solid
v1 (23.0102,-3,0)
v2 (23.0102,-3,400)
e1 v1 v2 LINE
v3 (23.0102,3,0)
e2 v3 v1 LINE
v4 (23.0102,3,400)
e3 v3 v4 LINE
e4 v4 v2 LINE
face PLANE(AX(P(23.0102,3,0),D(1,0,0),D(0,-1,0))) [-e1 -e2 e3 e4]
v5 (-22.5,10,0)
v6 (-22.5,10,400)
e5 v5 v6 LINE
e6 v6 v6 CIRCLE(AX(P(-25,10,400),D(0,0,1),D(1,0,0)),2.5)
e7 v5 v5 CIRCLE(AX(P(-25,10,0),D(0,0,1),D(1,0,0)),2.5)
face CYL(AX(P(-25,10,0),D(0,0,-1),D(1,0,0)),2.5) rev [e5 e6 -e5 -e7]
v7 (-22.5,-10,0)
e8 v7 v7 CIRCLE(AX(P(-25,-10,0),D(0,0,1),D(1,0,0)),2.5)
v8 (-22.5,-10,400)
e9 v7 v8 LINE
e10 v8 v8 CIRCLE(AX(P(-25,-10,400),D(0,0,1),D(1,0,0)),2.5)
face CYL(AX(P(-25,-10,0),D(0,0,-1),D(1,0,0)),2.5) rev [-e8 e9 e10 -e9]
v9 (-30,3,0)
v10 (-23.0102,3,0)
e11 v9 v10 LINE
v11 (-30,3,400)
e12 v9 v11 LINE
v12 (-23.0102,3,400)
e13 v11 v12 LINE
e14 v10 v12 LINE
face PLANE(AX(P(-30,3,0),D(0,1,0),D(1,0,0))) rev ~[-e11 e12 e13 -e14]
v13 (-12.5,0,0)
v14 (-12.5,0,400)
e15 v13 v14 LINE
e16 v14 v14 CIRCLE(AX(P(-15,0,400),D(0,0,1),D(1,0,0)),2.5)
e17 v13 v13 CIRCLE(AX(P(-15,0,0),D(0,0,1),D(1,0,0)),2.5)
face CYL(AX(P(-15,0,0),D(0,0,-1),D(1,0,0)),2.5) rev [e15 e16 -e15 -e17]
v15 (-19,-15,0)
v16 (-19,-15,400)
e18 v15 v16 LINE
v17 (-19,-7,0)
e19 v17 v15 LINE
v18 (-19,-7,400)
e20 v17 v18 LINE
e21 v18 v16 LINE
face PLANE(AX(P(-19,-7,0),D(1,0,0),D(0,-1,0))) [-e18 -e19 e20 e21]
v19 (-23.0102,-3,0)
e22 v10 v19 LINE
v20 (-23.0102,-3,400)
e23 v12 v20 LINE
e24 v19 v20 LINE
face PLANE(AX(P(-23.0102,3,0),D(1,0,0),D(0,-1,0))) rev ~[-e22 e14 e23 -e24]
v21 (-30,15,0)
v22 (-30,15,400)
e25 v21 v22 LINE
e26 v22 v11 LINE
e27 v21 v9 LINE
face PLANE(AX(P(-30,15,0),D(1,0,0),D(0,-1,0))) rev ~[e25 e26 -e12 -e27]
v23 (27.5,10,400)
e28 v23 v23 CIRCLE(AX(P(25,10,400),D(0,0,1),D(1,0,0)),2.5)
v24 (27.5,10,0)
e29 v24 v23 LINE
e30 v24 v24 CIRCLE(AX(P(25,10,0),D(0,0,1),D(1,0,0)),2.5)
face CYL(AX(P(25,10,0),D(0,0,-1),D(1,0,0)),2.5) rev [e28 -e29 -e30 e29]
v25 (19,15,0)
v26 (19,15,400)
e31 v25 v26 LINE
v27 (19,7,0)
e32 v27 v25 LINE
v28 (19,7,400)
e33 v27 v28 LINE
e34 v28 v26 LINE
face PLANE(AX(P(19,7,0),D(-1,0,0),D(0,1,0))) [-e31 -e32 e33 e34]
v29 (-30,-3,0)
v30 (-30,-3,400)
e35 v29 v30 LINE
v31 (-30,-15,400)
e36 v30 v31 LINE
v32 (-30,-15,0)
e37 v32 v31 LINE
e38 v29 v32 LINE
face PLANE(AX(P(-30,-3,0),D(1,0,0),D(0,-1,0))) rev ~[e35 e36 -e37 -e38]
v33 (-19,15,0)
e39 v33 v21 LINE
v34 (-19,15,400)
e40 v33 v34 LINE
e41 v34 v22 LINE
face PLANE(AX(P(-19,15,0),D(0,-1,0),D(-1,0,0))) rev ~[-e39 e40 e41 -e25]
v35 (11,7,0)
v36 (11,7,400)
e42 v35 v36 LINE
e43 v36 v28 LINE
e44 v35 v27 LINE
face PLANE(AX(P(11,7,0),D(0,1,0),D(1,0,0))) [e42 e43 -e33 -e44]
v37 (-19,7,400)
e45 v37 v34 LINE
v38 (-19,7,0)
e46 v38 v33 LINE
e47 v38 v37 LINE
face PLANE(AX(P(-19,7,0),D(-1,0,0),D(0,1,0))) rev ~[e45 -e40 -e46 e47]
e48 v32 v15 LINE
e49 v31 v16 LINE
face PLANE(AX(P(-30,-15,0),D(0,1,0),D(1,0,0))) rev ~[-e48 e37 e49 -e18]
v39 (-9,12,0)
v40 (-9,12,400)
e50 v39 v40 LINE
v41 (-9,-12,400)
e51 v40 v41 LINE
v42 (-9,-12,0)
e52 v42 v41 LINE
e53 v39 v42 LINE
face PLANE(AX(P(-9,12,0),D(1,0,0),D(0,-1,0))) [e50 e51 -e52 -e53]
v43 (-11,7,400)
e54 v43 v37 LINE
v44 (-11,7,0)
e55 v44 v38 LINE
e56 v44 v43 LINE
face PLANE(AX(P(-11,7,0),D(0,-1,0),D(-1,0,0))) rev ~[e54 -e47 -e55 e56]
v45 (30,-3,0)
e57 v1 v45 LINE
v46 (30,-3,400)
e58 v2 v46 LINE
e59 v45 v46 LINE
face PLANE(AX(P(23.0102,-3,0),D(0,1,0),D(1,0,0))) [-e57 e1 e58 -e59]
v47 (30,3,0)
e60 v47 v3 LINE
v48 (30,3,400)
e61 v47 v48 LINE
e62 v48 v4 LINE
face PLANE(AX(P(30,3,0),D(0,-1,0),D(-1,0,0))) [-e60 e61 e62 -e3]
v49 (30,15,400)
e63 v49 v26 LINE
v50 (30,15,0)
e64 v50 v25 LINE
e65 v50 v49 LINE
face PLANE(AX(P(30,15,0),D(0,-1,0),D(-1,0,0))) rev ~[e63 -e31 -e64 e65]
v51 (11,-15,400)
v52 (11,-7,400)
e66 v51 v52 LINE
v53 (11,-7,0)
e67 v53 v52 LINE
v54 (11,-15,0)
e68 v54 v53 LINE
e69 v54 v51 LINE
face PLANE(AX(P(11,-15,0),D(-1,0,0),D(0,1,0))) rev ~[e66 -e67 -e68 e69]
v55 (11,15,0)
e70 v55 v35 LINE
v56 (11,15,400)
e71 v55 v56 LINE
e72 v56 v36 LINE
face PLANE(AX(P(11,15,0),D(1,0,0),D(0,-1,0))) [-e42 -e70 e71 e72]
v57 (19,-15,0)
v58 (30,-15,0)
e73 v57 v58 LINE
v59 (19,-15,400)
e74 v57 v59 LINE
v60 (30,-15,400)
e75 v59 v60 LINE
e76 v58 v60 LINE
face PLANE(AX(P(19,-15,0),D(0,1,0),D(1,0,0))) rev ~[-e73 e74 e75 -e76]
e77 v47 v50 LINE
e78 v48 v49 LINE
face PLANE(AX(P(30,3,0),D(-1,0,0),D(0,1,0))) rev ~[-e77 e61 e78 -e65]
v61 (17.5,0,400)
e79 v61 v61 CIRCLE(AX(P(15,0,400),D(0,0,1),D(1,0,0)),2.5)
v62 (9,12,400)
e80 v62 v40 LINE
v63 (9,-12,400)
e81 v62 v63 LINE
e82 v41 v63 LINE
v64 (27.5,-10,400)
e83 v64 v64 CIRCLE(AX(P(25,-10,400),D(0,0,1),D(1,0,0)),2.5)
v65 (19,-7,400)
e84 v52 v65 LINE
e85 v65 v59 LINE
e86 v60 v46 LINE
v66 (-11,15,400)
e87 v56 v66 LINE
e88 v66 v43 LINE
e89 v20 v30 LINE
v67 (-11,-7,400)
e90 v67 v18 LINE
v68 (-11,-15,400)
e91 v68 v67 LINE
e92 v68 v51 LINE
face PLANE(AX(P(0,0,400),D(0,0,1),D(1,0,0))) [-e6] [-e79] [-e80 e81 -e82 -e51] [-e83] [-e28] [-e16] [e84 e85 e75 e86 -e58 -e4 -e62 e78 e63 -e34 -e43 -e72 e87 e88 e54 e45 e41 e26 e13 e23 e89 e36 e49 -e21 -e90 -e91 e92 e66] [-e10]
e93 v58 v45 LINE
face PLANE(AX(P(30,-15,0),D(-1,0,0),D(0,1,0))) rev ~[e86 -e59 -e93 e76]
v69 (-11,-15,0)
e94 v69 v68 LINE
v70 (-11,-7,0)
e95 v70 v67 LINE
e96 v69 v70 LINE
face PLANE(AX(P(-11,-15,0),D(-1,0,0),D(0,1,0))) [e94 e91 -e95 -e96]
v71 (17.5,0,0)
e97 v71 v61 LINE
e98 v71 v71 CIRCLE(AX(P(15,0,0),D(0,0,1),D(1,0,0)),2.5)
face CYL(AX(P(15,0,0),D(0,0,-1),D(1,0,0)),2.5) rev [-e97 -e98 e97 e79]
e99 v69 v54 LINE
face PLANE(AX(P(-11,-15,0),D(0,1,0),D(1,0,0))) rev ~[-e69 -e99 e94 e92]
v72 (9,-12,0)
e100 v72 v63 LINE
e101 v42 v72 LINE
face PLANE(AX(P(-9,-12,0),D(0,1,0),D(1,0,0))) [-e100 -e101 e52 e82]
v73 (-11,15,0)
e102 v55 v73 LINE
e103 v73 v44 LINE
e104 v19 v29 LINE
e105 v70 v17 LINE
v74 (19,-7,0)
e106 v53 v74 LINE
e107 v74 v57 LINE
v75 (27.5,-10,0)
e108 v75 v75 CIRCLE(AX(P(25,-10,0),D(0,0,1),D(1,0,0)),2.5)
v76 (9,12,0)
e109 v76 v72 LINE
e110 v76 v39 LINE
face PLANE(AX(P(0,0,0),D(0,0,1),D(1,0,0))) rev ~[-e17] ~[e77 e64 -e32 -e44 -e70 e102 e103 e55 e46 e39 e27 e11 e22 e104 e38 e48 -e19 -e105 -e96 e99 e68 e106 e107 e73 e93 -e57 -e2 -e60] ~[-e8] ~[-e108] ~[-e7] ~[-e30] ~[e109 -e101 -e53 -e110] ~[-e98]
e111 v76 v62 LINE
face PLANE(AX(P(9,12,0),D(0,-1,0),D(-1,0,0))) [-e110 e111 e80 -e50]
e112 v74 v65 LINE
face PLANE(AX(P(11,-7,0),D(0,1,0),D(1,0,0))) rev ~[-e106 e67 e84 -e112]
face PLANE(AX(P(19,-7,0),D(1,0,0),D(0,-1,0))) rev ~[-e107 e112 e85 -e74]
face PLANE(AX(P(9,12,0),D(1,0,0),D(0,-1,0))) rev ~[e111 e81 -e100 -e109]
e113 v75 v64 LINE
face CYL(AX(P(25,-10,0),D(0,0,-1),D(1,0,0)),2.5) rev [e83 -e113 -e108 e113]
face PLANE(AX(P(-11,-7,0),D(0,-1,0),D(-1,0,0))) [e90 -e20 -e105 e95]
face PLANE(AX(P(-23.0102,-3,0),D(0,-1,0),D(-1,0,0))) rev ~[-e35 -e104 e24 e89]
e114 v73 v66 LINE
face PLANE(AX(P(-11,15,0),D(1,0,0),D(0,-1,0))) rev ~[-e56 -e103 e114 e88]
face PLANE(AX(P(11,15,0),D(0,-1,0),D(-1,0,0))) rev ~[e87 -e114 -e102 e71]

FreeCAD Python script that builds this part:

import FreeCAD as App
import Part
import Sketcher
Q = App.Units.Quantity


def add_polygon(sketch, points):
    """Adds a closed chain of lines whose ends are joined by coincident constraints."""
    first, n = sketch.GeometryCount, len(points)
    for a, b in zip(points, points[1:] + points[:1]):
        sketch.addGeometry(Part.LineSegment(App.Vector(*a, 0), App.Vector(*b, 0)), False)
    for i in range(n):
        sketch.addConstraint(Sketcher.Constraint("Coincident", first + i, 2, first + (i + 1) % n, 1))

doc = App.newDocument("Part")
params = doc.addObject("Spreadsheet::Sheet", "Params")
for row, (alias, value) in enumerate([
    ("sketch1_diameter", "5 mm"),
    ("sketch1_width", "8 mm"),
    ("sketch1_height", "12 mm"),
    ("sketch1_height2", "6 mm"),
    ("sketch1_height3", "24 mm"),
    ("pad1_length", "400 mm"),
], start=1):
    params.set(f"A{row}", alias)
    params.set(f"B{row}", "=" + value)
    params.setAlias(f"B{row}", alias)

body = doc.addObject("PartDesign::Body", "Body")

sketch1 = doc.addObject("Sketcher::SketchObject", "Sketch")
body.addObject(sketch1)
sketch1.AttachmentSupport = (doc.XY_Plane, [""])
sketch1.MapMode = "FlatFace"
add_polygon(sketch1, [(-30, 15), (-30, 3), (-23.0102, 3), (-23.0102, -3), (-30, -3), (-30, -15), (-19, -15), (-19, -7), (-11, -7), (-11, -15), (11, -15), (11, -7), (19, -7), (19, -15), (30, -15), (30, -3), (23.0102, -3), (23.0102, 3), (30, 3), (30, 15), (19, 15), (19, 7), (11, 7), (11, 15), (-11, 15), (-11, 7), (-19, 7), (-19, 15)])
sketch1.addGeometry(Part.Circle(App.Vector(-25, -10, 0), App.Vector(0, 0, 1), 2.5), False)
sketch1.addGeometry(Part.Circle(App.Vector(25, -10, 0), App.Vector(0, 0, 1), 2.5), False)
sketch1.addGeometry(Part.Circle(App.Vector(-15, 0, 0), App.Vector(0, 0, 1), 2.5), False)
sketch1.addGeometry(Part.Circle(App.Vector(-25, 10, 0), App.Vector(0, 0, 1), 2.5), False)
add_polygon(sketch1, [(-9, 12), (9, 12), (9, -12), (-9, -12)])
sketch1.addGeometry(Part.Circle(App.Vector(15, 0, 0), App.Vector(0, 0, 1), 2.5), False)
sketch1.addGeometry(Part.Circle(App.Vector(25, 10, 0), App.Vector(0, 0, 1), 2.5), False)
sketch1.addConstraint(Sketcher.Constraint("Vertical", 0))
sketch1.addConstraint(Sketcher.Constraint("Horizontal", 1))
sketch1.addConstraint(Sketcher.Constraint("Vertical", 2))
sketch1.addConstraint(Sketcher.Constraint("Horizontal", 3))
sketch1.addConstraint(Sketcher.Constraint("Vertical", 4))
sketch1.addConstraint(Sketcher.Constraint("Horizontal", 5))
sketch1.addConstraint(Sketcher.Constraint("Vertical", 6))
sketch1.addConstraint(Sketcher.Constraint("Horizontal", 7))
sketch1.addConstraint(Sketcher.Constraint("Vertical", 8))
sketch1.addConstraint(Sketcher.Constraint("Horizontal", 9))
sketch1.addConstraint(Sketcher.Constraint("Vertical", 10))
sketch1.addConstraint(Sketcher.Constraint("Horizontal", 11))
sketch1.addConstraint(Sketcher.Constraint("Vertical", 12))
sketch1.addConstraint(Sketcher.Constraint("Horizontal", 13))
sketch1.addConstraint(Sketcher.Constraint("Vertical", 14))
sketch1.addConstraint(Sketcher.Constraint("Horizontal", 15))
sketch1.addConstraint(Sketcher.Constraint("Vertical", 16))
sketch1.addConstraint(Sketcher.Constraint("Horizontal", 17))
sketch1.addConstraint(Sketcher.Constraint("Vertical", 18))
sketch1.addConstraint(Sketcher.Constraint("Horizontal", 19))
sketch1.addConstraint(Sketcher.Constraint("Vertical", 20))
sketch1.addConstraint(Sketcher.Constraint("Horizontal", 21))
sketch1.addConstraint(Sketcher.Constraint("Vertical", 22))
sketch1.addConstraint(Sketcher.Constraint("Horizontal", 23))
sketch1.addConstraint(Sketcher.Constraint("Vertical", 24))
sketch1.addConstraint(Sketcher.Constraint("Horizontal", 25))
sketch1.addConstraint(Sketcher.Constraint("Vertical", 26))
sketch1.addConstraint(Sketcher.Constraint("Horizontal", 27))
sketch1.addConstraint(Sketcher.Constraint("Horizontal", 32))
sketch1.addConstraint(Sketcher.Constraint("Vertical", 33))
sketch1.addConstraint(Sketcher.Constraint("Horizontal", 34))
sketch1.addConstraint(Sketcher.Constraint("Vertical", 35))
sketch1.addConstraint(Sketcher.Constraint("Equal", 28, 29))
sketch1.addConstraint(Sketcher.Constraint("Equal", 29, 30))
sketch1.addConstraint(Sketcher.Constraint("Equal", 30, 31))
sketch1.addConstraint(Sketcher.Constraint("Equal", 31, 36))
sketch1.addConstraint(Sketcher.Constraint("Equal", 36, 37))
sketch1.addConstraint(Sketcher.Constraint("Symmetric", 29, 3, 31, 3, -1, 1))
sketch1.addConstraint(Sketcher.Constraint("Symmetric", 30, 3, 36, 3, -1, 1))
sketch1.addConstraint(Sketcher.Constraint("Symmetric", 28, 3, 37, 3, -1, 1))
sketch1.addConstraint(Sketcher.Constraint("Symmetric", 0, 2, 14, 2, -1, 1))
sketch1.addConstraint(Sketcher.Constraint("Symmetric", 2, 2, 16, 2, -1, 1))
sketch1.addConstraint(Sketcher.Constraint("Symmetric", 4, 2, 18, 2, -1, 1))
sketch1.addConstraint(Sketcher.Constraint("Symmetric", 6, 2, 20, 2, -1, 1))
sketch1.addConstraint(Sketcher.Constraint("Symmetric", 8, 2, 22, 2, -1, 1))
sketch1.addConstraint(Sketcher.Constraint("Symmetric", 10, 2, 24, 2, -1, 1))
sketch1.addConstraint(Sketcher.Constraint("Symmetric", 12, 2, 26, 2, -1, 1))
sketch1.addConstraint(Sketcher.Constraint("Symmetric", 32, 2, 34, 2, -1, 1))
sketch1.addConstraint(Sketcher.Constraint("Symmetric", 28, 3, 29, 3, -2))
sketch1.addConstraint(Sketcher.Constraint("Symmetric", 7, 2, 10, 2, -2))
sketch1.addConstraint(Sketcher.Constraint("Symmetric", 5, 2, 12, 2, -2))
sketch1.addConstraint(Sketcher.Constraint("Symmetric", 3, 2, 14, 2, -2))
sketch1.addConstraint(Sketcher.Constraint("PointOnObject", 30, 3, -1))
sketch1.addConstraint(Sketcher.Constraint("Horizontal", 5, 2, 8, 2))
sketch1.addConstraint(Sketcher.Constraint("Equal", 25, 6))
sketch1.addConstraint(Sketcher.Constraint("Diameter", 28, Q("5 mm")))
sketch1.addConstraint(Sketcher.Constraint("DistanceX", 7, 1, 7, 2, Q("8 mm")))
sketch1.addConstraint(Sketcher.Constraint("DistanceY", 0, 2, 0, 1, Q("12 mm")))
sketch1.addConstraint(Sketcher.Constraint("DistanceY", 2, 2, 2, 1, Q("6 mm")))
sketch1.addConstraint(Sketcher.Constraint("DistanceY", 33, 2, 33, 1, Q("24 mm")))
sketch1.addConstraint(Sketcher.Constraint("DistanceX", 28, 3, -1, 1, Q("25 mm")))
sketch1.addConstraint(Sketcher.Constraint("DistanceY", 28, 3, -1, 1, Q("10 mm")))
sketch1.addConstraint(Sketcher.Constraint("DistanceX", 30, 3, -1, 1, Q("15 mm")))
sketch1.addConstraint(Sketcher.Constraint("DistanceX", 0, 2, -1, 1, Q("30 mm")))
sketch1.addConstraint(Sketcher.Constraint("DistanceX", 5, 2, -1, 1, Q("19 mm")))
sketch1.addConstraint(Sketcher.Constraint("DistanceX", -1, 1, 32, 2, Q("9 mm")))
sketch1.addConstraint(Sketcher.Constraint("DistanceX", 1, 1, 1, 2, Q("6.9898 mm")))
sketch1.setExpression("Constraints[87]", "Params.sketch1_diameter")
sketch1.setExpression("Constraints[88]", "Params.sketch1_width")
sketch1.setExpression("Constraints[89]", "Params.sketch1_height")
sketch1.setExpression("Constraints[90]", "Params.sketch1_height2")
sketch1.setExpression("Constraints[91]", "Params.sketch1_height3")
pad1 = doc.addObject("PartDesign::Pad", "Pad")
body.addObject(pad1)
pad1.Profile = sketch1
pad1.setExpression("Length", "Params.pad1_length")

doc.recompute()
